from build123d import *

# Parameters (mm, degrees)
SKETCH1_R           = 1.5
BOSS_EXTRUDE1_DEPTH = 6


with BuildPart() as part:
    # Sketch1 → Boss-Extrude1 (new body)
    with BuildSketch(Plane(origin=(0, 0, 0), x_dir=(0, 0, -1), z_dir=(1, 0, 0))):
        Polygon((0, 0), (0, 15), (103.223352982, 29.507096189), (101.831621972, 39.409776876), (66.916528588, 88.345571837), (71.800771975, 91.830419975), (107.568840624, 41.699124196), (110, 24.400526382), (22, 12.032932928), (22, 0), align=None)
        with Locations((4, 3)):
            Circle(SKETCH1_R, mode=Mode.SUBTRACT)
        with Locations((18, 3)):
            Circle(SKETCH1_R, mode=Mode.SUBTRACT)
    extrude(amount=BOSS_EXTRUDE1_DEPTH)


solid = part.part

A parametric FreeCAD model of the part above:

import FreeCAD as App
import Part
import Sketcher

V = App.Vector
Q = App.Units.Quantity

doc = App.newDocument("Part")
body = doc.addObject("PartDesign::Body", "Body")

# Sketch on YZ plane
sketch1 = doc.addObject("Sketcher::SketchObject", "Sketch")
body.addObject(sketch1)
sketch1.AttachmentSupport = (doc.YZ_Plane, [""])
sketch1.MapMode = "FlatFace"
sketch1.addGeometry([
    Part.LineSegment(V(15, 0, 0), V(0, 0, 0)),  # 0
    Part.LineSegment(V(0, 0, 0), V(0, -22, 0)),  # 1
    Part.LineSegment(V(0, -22, 0), V(12, -22, 0)),  # 2
    Part.LineSegment(V(12, -22, 0), V(24.4, -110, 0)),  # 3
    Part.LineSegment(V(24.4, -110, 0), V(41.7, -107.6, 0)),  # 4
    Part.LineSegment(V(41.7, -107.6, 0), V(91.8, -71.8, 0)),  # 5
    Part.LineSegment(V(91.8, -71.8, 0), V(88.3, -66.9, 0)),  # 6
    Part.LineSegment(V(88.3, -66.9, 0), V(39.4, -101.8, 0)),  # 7
    Part.LineSegment(V(39.4, -101.8, 0), V(29.5, -103.2, 0)),  # 8
    Part.LineSegment(V(29.5, -103.2, 0), V(15, 0, 0)),  # 9
    Part.Circle(V(3, -18, 0), V(0, 0, 1), 1.5),  # 10
    Part.Circle(V(3, -4, 0), V(0, 0, 1), 1.5),  # 11
], False)
sketch1.addConstraint([
    Sketcher.Constraint("Coincident", 0, 2, 1, 1),
    Sketcher.Constraint("Coincident", 1, 2, 2, 1),
    Sketcher.Constraint("Coincident", 2, 2, 3, 1),
    Sketcher.Constraint("Coincident", 3, 2, 4, 1),
    Sketcher.Constraint("Coincident", 4, 2, 5, 1),
    Sketcher.Constraint("Coincident", 5, 2, 6, 1),
    Sketcher.Constraint("Coincident", 6, 2, 7, 1),
    Sketcher.Constraint("Coincident", 7, 2, 8, 1),
    Sketcher.Constraint("Coincident", 8, 2, 9, 1),
    Sketcher.Constraint("Coincident", 9, 2, 0, 1),
    Sketcher.Constraint("Horizontal", 0),
    Sketcher.Constraint("Vertical", 1),
    Sketcher.Constraint("Horizontal", 2),
    Sketcher.Constraint("Coincident", 0, 2, -1, 1),
    Sketcher.Constraint("Equal", 10, 11),
    Sketcher.Constraint("Perpendicular", 3, 4),
    Sketcher.Constraint("Perpendicular", 5, 6),
    Sketcher.Constraint("Perpendicular", 6, 7),
    Sketcher.Constraint("Parallel", 4, 8),
    Sketcher.Constraint("Perpendicular", 8, 9),
    Sketcher.Constraint("Vertical", 10, 3, 11, 3),
    Sketcher.Constraint("Diameter", 10, Q("3 mm")),
    Sketcher.Constraint("DistanceX", 0, 2, 0, 1, Q("15 mm")),
    Sketcher.Constraint("DistanceY", 1, 2, 1, 1, Q("22 mm")),
    Sketcher.Constraint("Angle", 3, Q("-82 deg")),
    Sketcher.Constraint("Distance", 6, Q("6 mm")),
    Sketcher.Constraint("Distance", 8, Q("10 mm")),
    Sketcher.Constraint("DistanceX", -1, 1, 10, 3, Q("3 mm")),
    Sketcher.Constraint("DistanceY", 10, 3, -1, 1, Q("18 mm")),
    Sketcher.Constraint("DistanceY", 11, 3, -1, 1, Q("4 mm")),
    Sketcher.Constraint("DistanceY", 3, 2, -1, 1, Q("110 mm")),
    Sketcher.Constraint("Distance", 4, Q("17.468601 mm")),
    Sketcher.Constraint("Distance", 5, Q("61.58329 mm")),
    Sketcher.Constraint("Distance", 7, Q("60.114689 mm")),
    Sketcher.Constraint("DistanceX", 2, 1, 2, 2, Q("12.032933 mm")),
])
pad1 = doc.addObject("PartDesign::Pad", "Pad")
body.addObject(pad1)
pad1.Profile = sketch1
pad1.Length = 6

doc.recompute()
